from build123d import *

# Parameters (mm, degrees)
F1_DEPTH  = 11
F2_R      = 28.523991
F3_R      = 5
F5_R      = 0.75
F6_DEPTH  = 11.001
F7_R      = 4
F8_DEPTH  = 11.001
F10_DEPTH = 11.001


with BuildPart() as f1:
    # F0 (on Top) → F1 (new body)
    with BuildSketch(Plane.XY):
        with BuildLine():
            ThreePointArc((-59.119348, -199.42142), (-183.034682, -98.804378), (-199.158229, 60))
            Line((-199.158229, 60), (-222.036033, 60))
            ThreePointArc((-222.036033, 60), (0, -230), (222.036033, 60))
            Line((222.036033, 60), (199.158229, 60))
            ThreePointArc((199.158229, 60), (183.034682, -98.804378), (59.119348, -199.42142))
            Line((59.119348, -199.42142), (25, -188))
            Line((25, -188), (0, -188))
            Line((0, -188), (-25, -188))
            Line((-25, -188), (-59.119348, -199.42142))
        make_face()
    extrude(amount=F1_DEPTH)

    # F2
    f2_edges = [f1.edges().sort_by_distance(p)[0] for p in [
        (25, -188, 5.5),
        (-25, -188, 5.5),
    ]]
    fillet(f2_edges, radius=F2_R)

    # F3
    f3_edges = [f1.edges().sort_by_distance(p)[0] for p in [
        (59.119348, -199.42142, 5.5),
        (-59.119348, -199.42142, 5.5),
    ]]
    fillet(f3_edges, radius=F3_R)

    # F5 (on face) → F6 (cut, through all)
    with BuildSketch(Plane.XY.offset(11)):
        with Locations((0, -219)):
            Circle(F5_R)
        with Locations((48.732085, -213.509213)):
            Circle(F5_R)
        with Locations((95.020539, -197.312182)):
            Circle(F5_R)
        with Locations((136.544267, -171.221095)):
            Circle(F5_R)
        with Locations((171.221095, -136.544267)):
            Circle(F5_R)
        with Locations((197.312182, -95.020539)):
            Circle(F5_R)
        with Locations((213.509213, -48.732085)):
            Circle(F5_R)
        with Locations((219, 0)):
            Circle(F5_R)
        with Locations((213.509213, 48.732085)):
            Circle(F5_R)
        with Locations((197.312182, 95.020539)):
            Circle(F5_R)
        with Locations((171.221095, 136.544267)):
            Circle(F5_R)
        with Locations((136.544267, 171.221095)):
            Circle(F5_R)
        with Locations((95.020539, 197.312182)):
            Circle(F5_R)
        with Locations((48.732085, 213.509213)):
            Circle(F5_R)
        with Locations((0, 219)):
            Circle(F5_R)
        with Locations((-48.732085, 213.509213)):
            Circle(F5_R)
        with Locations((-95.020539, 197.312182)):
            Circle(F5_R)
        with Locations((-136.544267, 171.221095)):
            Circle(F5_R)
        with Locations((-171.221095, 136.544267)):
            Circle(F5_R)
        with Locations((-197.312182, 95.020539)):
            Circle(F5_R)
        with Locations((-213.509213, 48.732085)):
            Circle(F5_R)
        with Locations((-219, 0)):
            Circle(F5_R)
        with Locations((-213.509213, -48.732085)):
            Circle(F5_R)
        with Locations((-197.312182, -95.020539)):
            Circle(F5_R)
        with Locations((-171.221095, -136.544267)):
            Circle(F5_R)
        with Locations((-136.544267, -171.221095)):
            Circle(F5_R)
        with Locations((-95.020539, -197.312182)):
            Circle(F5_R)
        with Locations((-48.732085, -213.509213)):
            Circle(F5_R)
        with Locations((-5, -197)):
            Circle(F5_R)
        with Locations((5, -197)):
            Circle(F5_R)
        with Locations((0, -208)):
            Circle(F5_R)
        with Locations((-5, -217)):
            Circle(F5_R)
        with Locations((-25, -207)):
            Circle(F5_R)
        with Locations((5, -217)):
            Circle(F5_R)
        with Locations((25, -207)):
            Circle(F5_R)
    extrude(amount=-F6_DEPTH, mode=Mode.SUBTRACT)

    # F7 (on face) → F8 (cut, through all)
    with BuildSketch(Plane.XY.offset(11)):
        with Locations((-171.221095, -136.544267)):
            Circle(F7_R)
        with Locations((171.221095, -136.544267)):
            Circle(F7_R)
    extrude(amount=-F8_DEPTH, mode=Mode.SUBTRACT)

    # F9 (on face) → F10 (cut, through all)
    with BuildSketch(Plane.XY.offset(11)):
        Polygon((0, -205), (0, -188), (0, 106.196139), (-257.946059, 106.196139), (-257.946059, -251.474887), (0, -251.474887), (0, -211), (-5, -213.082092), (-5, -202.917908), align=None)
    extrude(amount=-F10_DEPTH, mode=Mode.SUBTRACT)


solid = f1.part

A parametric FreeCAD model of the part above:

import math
import FreeCAD as App
import Part
import Sketcher
from FreeCAD import Vector


def edges_at(feature, points):
    """Names of the edges that pass closest to the given points."""
    edges = feature.Shape.Edges
    near = lambda p: min(range(len(edges)), key=lambda i: edges[i].distToShape(Part.Vertex(*p))[0])
    return sorted({f"Edge{near(p) + 1}" for p in points})

doc = App.newDocument("Part")
body = doc.addObject("PartDesign::Body", "Body")

sketch1 = body.newObject("Sketcher::SketchObject", "Sketch")
sketch1.AttachmentSupport = (doc.getObject("XY_Plane"), [""])
sketch1.MapMode = "FlatFace"
sketch1.addGeometry(Part.ArcOfCircle(Part.Circle(Vector(0, 0, 0), Vector(0, 0, 1), 208), math.radians(163), math.radians(253)), False)
sketch1.addGeometry(Part.LineSegment(Vector(-199, 60, 0), Vector(-222, 60, 0)), False)
sketch1.addGeometry(Part.ArcOfCircle(Part.Circle(Vector(0, 0, 0), Vector(0, 0, 1), 230), math.radians(165), math.radians(375)), False)
sketch1.addGeometry(Part.LineSegment(Vector(222, 60, 0), Vector(199, 60, 0)), False)
sketch1.addGeometry(Part.ArcOfCircle(Part.Circle(Vector(0, 0, 0), Vector(0, 0, 1), 208), math.radians(-73), math.radians(17)), False)
sketch1.addGeometry(Part.LineSegment(Vector(59, -199, 0), Vector(25, -188, 0)), False)
sketch1.addGeometry(Part.LineSegment(Vector(25, -188, 0), Vector(-25, -188, 0)), False)
sketch1.addGeometry(Part.LineSegment(Vector(-25, -188, 0), Vector(-59, -199, 0)), False)
sketch1.addConstraint(Sketcher.Constraint("Coincident", 0, 1, 1, 1))
sketch1.addConstraint(Sketcher.Constraint("Coincident", 1, 2, 2, 1))
sketch1.addConstraint(Sketcher.Constraint("Coincident", 2, 2, 3, 1))
sketch1.addConstraint(Sketcher.Constraint("Coincident", 3, 2, 4, 2))
sketch1.addConstraint(Sketcher.Constraint("Coincident", 4, 1, 5, 1))
sketch1.addConstraint(Sketcher.Constraint("Coincident", 5, 2, 6, 1))
sketch1.addConstraint(Sketcher.Constraint("Coincident", 6, 2, 7, 1))
sketch1.addConstraint(Sketcher.Constraint("Coincident", 7, 2, 0, 2))
sketch1.addConstraint(Sketcher.Constraint("Horizontal", 1))
sketch1.addConstraint(Sketcher.Constraint("Horizontal", 3))
sketch1.addConstraint(Sketcher.Constraint("Horizontal", 6))
sketch1.addConstraint(Sketcher.Constraint("Coincident", 0, 3, -1, 1))
sketch1.addConstraint(Sketcher.Constraint("Coincident", 2, 3, -1, 1))
sketch1.addConstraint(Sketcher.Constraint("Coincident", 4, 3, -1, 1))
sketch1.addConstraint(Sketcher.Constraint("Equal", 0, 4))
sketch1.addConstraint(Sketcher.Constraint("Horizontal", 1, 2, 2, 2))
sketch1.addConstraint(Sketcher.Constraint("Horizontal", 4, 1, 7, 2))
sketch1.addConstraint(Sketcher.Constraint("Equal", 5, 7))
sketch1.addConstraint(Sketcher.Constraint("Radius", 0, 208.000001))
sketch1.addConstraint(Sketcher.Constraint("Radius", 2, 230.0))
sketch1.addConstraint(Sketcher.Constraint("DistanceX", 6, 2, 6, 1, 50.0))
sketch1.addConstraint(Sketcher.Constraint("DistanceY", -1, 1, 0, 1, 60.0))
sketch1.addConstraint(Sketcher.Constraint("DistanceY", 5, 2, -1, 1, 188.0))
sketch1.addConstraint(Sketcher.Constraint("DistanceX", -1, 1, 4, 1, 59.119348))
pad1 = body.newObject("PartDesign::Pad", "Pad")
pad1.Profile = sketch1
pad1.Length = 11
doc.recompute()

fillet = body.newObject("PartDesign::Fillet", "Fillet")
fillet.Base = (pad1, edges_at(pad1, [(25, -188, 5.5), (-25, -188, 5.5)]))
fillet.Radius = 28.523991
doc.recompute()

fillet2 = body.newObject("PartDesign::Fillet", "Fillet001")
fillet2.Base = (fillet, edges_at(fillet, [(59.119, -199.421, 5.5), (-59.119, -199.421, 5.5)]))
fillet2.Radius = 5

sketch2 = body.newObject("Sketcher::SketchObject", "Sketch001")
sketch2.AttachmentSupport = (doc.getObject("XY_Plane"), [""])
sketch2.MapMode = "FlatFace"
sketch2.AttachmentOffset = App.Placement(Vector(0, 0, 11), App.Rotation())
sketch2.addGeometry(Part.Circle(Vector(0, -219, 0), Vector(0, 0, 1), 0.8), False)
sketch2.addGeometry(Part.Circle(Vector(48.7, -213.5, 0), Vector(0, 0, 1), 0.8), False)
sketch2.addGeometry(Part.Circle(Vector(95, -197.3, 0), Vector(0, 0, 1), 0.8), False)
sketch2.addGeometry(Part.Circle(Vector(136.5, -171.2, 0), Vector(0, 0, 1), 0.8), False)
sketch2.addGeometry(Part.Circle(Vector(171.2, -136.5, 0), Vector(0, 0, 1), 0.8), False)
sketch2.addGeometry(Part.Circle(Vector(197.3, -95, 0), Vector(0, 0, 1), 0.8), False)
sketch2.addGeometry(Part.Circle(Vector(213.5, -48.7, 0), Vector(0, 0, 1), 0.8), False)
sketch2.addGeometry(Part.Circle(Vector(219, 0, 0), Vector(0, 0, 1), 0.8), False)
sketch2.addGeometry(Part.Circle(Vector(213.5, 48.7, 0), Vector(0, 0, 1), 0.8), False)
sketch2.addGeometry(Part.Circle(Vector(197.3, 95, 0), Vector(0, 0, 1), 0.8), False)
sketch2.addGeometry(Part.Circle(Vector(171.2, 136.5, 0), Vector(0, 0, 1), 0.8), False)
sketch2.addGeometry(Part.Circle(Vector(136.5, 171.2, 0), Vector(0, 0, 1), 0.8), False)
sketch2.addGeometry(Part.Circle(Vector(95, 197.3, 0), Vector(0, 0, 1), 0.8), False)
sketch2.addGeometry(Part.Circle(Vector(48.7, 213.5, 0), Vector(0, 0, 1), 0.8), False)
sketch2.addGeometry(Part.Circle(Vector(0, 219, 0), Vector(0, 0, 1), 0.8), False)
sketch2.addGeometry(Part.Circle(Vector(-48.7, 213.5, 0), Vector(0, 0, 1), 0.8), False)
sketch2.addGeometry(Part.Circle(Vector(-95, 197.3, 0), Vector(0, 0, 1), 0.8), False)
sketch2.addGeometry(Part.Circle(Vector(-136.5, 171.2, 0), Vector(0, 0, 1), 0.8), False)
sketch2.addGeometry(Part.Circle(Vector(-171.2, 136.5, 0), Vector(0, 0, 1), 0.8), False)
sketch2.addGeometry(Part.Circle(Vector(-197.3, 95, 0), Vector(0, 0, 1), 0.8), False)
sketch2.addGeometry(Part.Circle(Vector(-213.5, 48.7, 0), Vector(0, 0, 1), 0.8), False)
sketch2.addGeometry(Part.Circle(Vector(-219, 0, 0), Vector(0, 0, 1), 0.8), False)
sketch2.addGeometry(Part.Circle(Vector(-213.5, -48.7, 0), Vector(0, 0, 1), 0.8), False)
sketch2.addGeometry(Part.Circle(Vector(-197.3, -95, 0), Vector(0, 0, 1), 0.8), False)
sketch2.addGeometry(Part.Circle(Vector(-171.2, -136.5, 0), Vector(0, 0, 1), 0.8), False)
sketch2.addGeometry(Part.Circle(Vector(-136.5, -171.2, 0), Vector(0, 0, 1), 0.8), False)
sketch2.addGeometry(Part.Circle(Vector(-95, -197.3, 0), Vector(0, 0, 1), 0.8), False)
sketch2.addGeometry(Part.Circle(Vector(-48.7, -213.5, 0), Vector(0, 0, 1), 0.8), False)
sketch2.addGeometry(Part.Circle(Vector(-5, -197, 0), Vector(0, 0, 1), 0.8), False)
sketch2.addGeometry(Part.Circle(Vector(5, -197, 0), Vector(0, 0, 1), 0.8), False)
sketch2.addGeometry(Part.Circle(Vector(0, -208, 0), Vector(0, 0, 1), 0.8), False)
sketch2.addGeometry(Part.Circle(Vector(-5, -217, 0), Vector(0, 0, 1), 0.8), False)
sketch2.addGeometry(Part.Circle(Vector(-25, -207, 0), Vector(0, 0, 1), 0.8), False)
sketch2.addGeometry(Part.Circle(Vector(5, -217, 0), Vector(0, 0, 1), 0.8), False)
sketch2.addGeometry(Part.Circle(Vector(25, -207, 0), Vector(0, 0, 1), 0.8), False)
sketch2.addConstraint(Sketcher.Constraint("Equal", 0, 1))
sketch2.addConstraint(Sketcher.Constraint("Equal", 1, 2))
sketch2.addConstraint(Sketcher.Constraint("Equal", 2, 3))
sketch2.addConstraint(Sketcher.Constraint("Equal", 3, 4))
sketch2.addConstraint(Sketcher.Constraint("Equal", 4, 5))
sketch2.addConstraint(Sketcher.Constraint("Equal", 5, 6))
sketch2.addConstraint(Sketcher.Constraint("Equal", 6, 7))
sketch2.addConstraint(Sketcher.Constraint("Equal", 7, 8))
sketch2.addConstraint(Sketcher.Constraint("Equal", 8, 9))
sketch2.addConstraint(Sketcher.Constraint("Equal", 9, 10))
sketch2.addConstraint(Sketcher.Constraint("Equal", 10, 11))
sketch2.addConstraint(Sketcher.Constraint("Equal", 11, 12))
sketch2.addConstraint(Sketcher.Constraint("Equal", 12, 13))
sketch2.addConstraint(Sketcher.Constraint("Equal", 13, 14))
sketch2.addConstraint(Sketcher.Constraint("Equal", 14, 15))
sketch2.addConstraint(Sketcher.Constraint("Equal", 15, 16))
sketch2.addConstraint(Sketcher.Constraint("Equal", 16, 17))
sketch2.addConstraint(Sketcher.Constraint("Equal", 17, 18))
sketch2.addConstraint(Sketcher.Constraint("Equal", 18, 19))
sketch2.addConstraint(Sketcher.Constraint("Equal", 19, 20))
sketch2.addConstraint(Sketcher.Constraint("Equal", 20, 21))
sketch2.addConstraint(Sketcher.Constraint("Equal", 21, 22))
sketch2.addConstraint(Sketcher.Constraint("Equal", 22, 23))
sketch2.addConstraint(Sketcher.Constraint("Equal", 23, 24))
sketch2.addConstraint(Sketcher.Constraint("Equal", 24, 25))
sketch2.addConstraint(Sketcher.Constraint("Equal", 25, 26))
sketch2.addConstraint(Sketcher.Constraint("Equal", 26, 27))
sketch2.addConstraint(Sketcher.Constraint("Equal", 27, 28))
sketch2.addConstraint(Sketcher.Constraint("Equal", 28, 29))
sketch2.addConstraint(Sketcher.Constraint("Equal", 29, 30))
sketch2.addConstraint(Sketcher.Constraint("Equal", 30, 31))
sketch2.addConstraint(Sketcher.Constraint("Equal", 31, 32))
sketch2.addConstraint(Sketcher.Constraint("Equal", 32, 33))
sketch2.addConstraint(Sketcher.Constraint("Equal", 33, 34))
sketch2.addConstraint(Sketcher.Constraint("Symmetric", 0, 3, 14, 3, -1, 1))
sketch2.addConstraint(Sketcher.Constraint("Symmetric", 1, 3, 15, 3, -1, 1))
sketch2.addConstraint(Sketcher.Constraint("Symmetric", 2, 3, 16, 3, -1, 1))
sketch2.addConstraint(Sketcher.Constraint("Symmetric", 3, 3, 17, 3, -1, 1))
sketch2.addConstraint(Sketcher.Constraint("Symmetric", 4, 3, 18, 3, -1, 1))
sketch2.addConstraint(Sketcher.Constraint("Symmetric", 5, 3, 19, 3, -1, 1))
sketch2.addConstraint(Sketcher.Constraint("Symmetric", 6, 3, 20, 3, -1, 1))
sketch2.addConstraint(Sketcher.Constraint("Symmetric", 7, 3, 21, 3, -1, 1))
sketch2.addConstraint(Sketcher.Constraint("Symmetric", 8, 3, 22, 3, -1, 1))
sketch2.addConstraint(Sketcher.Constraint("Symmetric", 9, 3, 23, 3, -1, 1))
sketch2.addConstraint(Sketcher.Constraint("Symmetric", 10, 3, 24, 3, -1, 1))
sketch2.addConstraint(Sketcher.Constraint("Symmetric", 11, 3, 25, 3, -1, 1))
sketch2.addConstraint(Sketcher.Constraint("Symmetric", 12, 3, 26, 3, -1, 1))
sketch2.addConstraint(Sketcher.Constraint("Symmetric", 13, 3, 27, 3, -1, 1))
sketch2.addConstraint(Sketcher.Constraint("Symmetric", 13, 3, 15, 3, -2))
sketch2.addConstraint(Sketcher.Constraint("Symmetric", 12, 3, 16, 3, -2))
sketch2.addConstraint(Sketcher.Constraint("Symmetric", 11, 3, 17, 3, -2))
sketch2.addConstraint(Sketcher.Constraint("Symmetric", 10, 3, 18, 3, -2))
sketch2.addConstraint(Sketcher.Constraint("Symmetric", 9, 3, 19, 3, -2))
sketch2.addConstraint(Sketcher.Constraint("Symmetric", 8, 3, 20, 3, -2))
sketch2.addConstraint(Sketcher.Constraint("Symmetric", 28, 3, 29, 3, -2))
sketch2.addConstraint(Sketcher.Constraint("Symmetric", 31, 3, 33, 3, -2))
sketch2.addConstraint(Sketcher.Constraint("Symmetric", 32, 3, 34, 3, -2))
sketch2.addConstraint(Sketcher.Constraint("PointOnObject", 0, 3, -2))
sketch2.addConstraint(Sketcher.Constraint("PointOnObject", 7, 3, -1))
sketch2.addConstraint(Sketcher.Constraint("PointOnObject", 30, 3, -2))
sketch2.addConstraint(Sketcher.Constraint("Vertical", 28, 3, 31, 3))
sketch2.addConstraint(Sketcher.Constraint("Diameter", 0, 1.5))
sketch2.addConstraint(Sketcher.Constraint("DistanceY", 0, 3, -1, 1, 219.0))
sketch2.addConstraint(Sketcher.Constraint("DistanceX", -1, 1, 7, 3, 219.0))
sketch2.addConstraint(Sketcher.Constraint("DistanceX", 28, 3, -1, 1, 5.0))
sketch2.addConstraint(Sketcher.Constraint("DistanceY", 28, 3, -1, 1, 197.0))
sketch2.addConstraint(Sketcher.Constraint("DistanceY", 30, 3, -1, 1, 208.0))
sketch2.addConstraint(Sketcher.Constraint("DistanceY", 31, 3, -1, 1, 217.0))
sketch2.addConstraint(Sketcher.Constraint("DistanceX", 32, 3, -1, 1, 25.0))
sketch2.addConstraint(Sketcher.Constraint("DistanceY", 32, 3, -1, 1, 207.0))
sketch2.addConstraint(Sketcher.Constraint("DistanceX", -1, 1, 2, 3, 95.020539))
sketch2.addConstraint(Sketcher.Constraint("DistanceY", 2, 3, -1, 1, 197.312182))
sketch2.addConstraint(Sketcher.Constraint("DistanceX", -1, 1, 5, 3, 197.312182))
sketch2.addConstraint(Sketcher.Constraint("DistanceY", 5, 3, -1, 1, 95.020539))
sketch2.addConstraint(Sketcher.Constraint("DistanceY", 1, 3, 2, 3, 16.197031))
sketch2.addConstraint(Sketcher.Constraint("DistanceX", 1, 3, 3, 3, 87.812182))
sketch2.addConstraint(Sketcher.Constraint("DistanceX", 1, 3, 4, 3, 122.48901))
sketch2.addConstraint(Sketcher.Constraint("DistanceX", 5, 3, 6, 3, 16.197031))
sketch2.addConstraint(Sketcher.Constraint("DistanceY", 4, 3, 6, 3, 87.812182))
sketch2.addConstraint(Sketcher.Constraint("DistanceY", 3, 3, 6, 3, 122.48901))
sketch2.addConstraint(Sketcher.Constraint("DistanceX", 1, 3, 6, 3, 164.777128))
sketch2.addConstraint(Sketcher.Constraint("DistanceY", 1, 3, 6, 3, 164.777128))
pocket1 = body.newObject("PartDesign::Pocket", "Pocket")
pocket1.Profile = sketch2
pocket1.Type = "ThroughAll"

sketch3 = body.newObject("Sketcher::SketchObject", "Sketch002")
sketch3.AttachmentSupport = (doc.getObject("XY_Plane"), [""])
sketch3.MapMode = "FlatFace"
sketch3.AttachmentOffset = App.Placement(Vector(0, 0, 11), App.Rotation())
sketch3.addGeometry(Part.Circle(Vector(-171.2, -136.5, 0), Vector(0, 0, 1), 4), False)
sketch3.addGeometry(Part.Circle(Vector(171.2, -136.5, 0), Vector(0, 0, 1), 4), False)
sketch3.addConstraint(Sketcher.Constraint("Equal", 0, 1))
sketch3.addConstraint(Sketcher.Constraint("Symmetric", 0, 3, 1, 3, -2))
sketch3.addConstraint(Sketcher.Constraint("Diameter", 0, 8.0))
sketch3.addConstraint(Sketcher.Constraint("DistanceX", 0, 3, 1, 3, 342.44219))
sketch3.addConstraint(Sketcher.Constraint("DistanceY", 0, 3, -1, 1, 136.544267))
pocket2 = body.newObject("PartDesign::Pocket", "Pocket001")
pocket2.Profile = sketch3
pocket2.Type = "ThroughAll"

sketch4 = body.newObject("Sketcher::SketchObject", "Sketch003")
sketch4.AttachmentSupport = (doc.getObject("XY_Plane"), [""])
sketch4.MapMode = "FlatFace"
sketch4.AttachmentOffset = App.Placement(Vector(0, 0, 11), App.Rotation())
sketch4.addGeometry(Part.LineSegment(Vector(0, -205, 0), Vector(0, 106, 0)), False)
sketch4.addGeometry(Part.LineSegment(Vector(0, 106, 0), Vector(-258, 106, 0)), False)
sketch4.addGeometry(Part.LineSegment(Vector(-258, 106, 0), Vector(-258, -251, 0)), False)
sketch4.addGeometry(Part.LineSegment(Vector(-258, -251, 0), Vector(0, -251, 0)), False)
sketch4.addGeometry(Part.LineSegment(Vector(0, -251, 0), Vector(0, -211, 0)), False)
sketch4.addGeometry(Part.LineSegment(Vector(0, -211, 0), Vector(-5, -213, 0)), False)
sketch4.addGeometry(Part.LineSegment(Vector(-5, -213, 0), Vector(-5, -203, 0)), False)
sketch4.addGeometry(Part.LineSegment(Vector(-5, -203, 0), Vector(0, -205, 0)), False)
sketch4.addConstraint(Sketcher.Constraint("Coincident", 0, 2, 1, 1))
sketch4.addConstraint(Sketcher.Constraint("Coincident", 1, 2, 2, 1))
sketch4.addConstraint(Sketcher.Constraint("Coincident", 2, 2, 3, 1))
sketch4.addConstraint(Sketcher.Constraint("Coincident", 3, 2, 4, 1))
sketch4.addConstraint(Sketcher.Constraint("Coincident", 4, 2, 5, 1))
sketch4.addConstraint(Sketcher.Constraint("Coincident", 5, 2, 6, 1))
sketch4.addConstraint(Sketcher.Constraint("Coincident", 6, 2, 7, 1))
sketch4.addConstraint(Sketcher.Constraint("Coincident", 7, 2, 0, 1))
sketch4.addConstraint(Sketcher.Constraint("Vertical", 0))
sketch4.addConstraint(Sketcher.Constraint("Horizontal", 1))
sketch4.addConstraint(Sketcher.Constraint("Vertical", 2))
sketch4.addConstraint(Sketcher.Constraint("Horizontal", 3))
sketch4.addConstraint(Sketcher.Constraint("Vertical", 4))
sketch4.addConstraint(Sketcher.Constraint("Vertical", 6))
sketch4.addConstraint(Sketcher.Constraint("PointOnObject", 0, 2, -2))
sketch4.addConstraint(Sketcher.Constraint("PointOnObject", 3, 2, -2))
sketch4.addConstraint(Sketcher.Constraint("Equal", 5, 7))
sketch4.addConstraint(Sketcher.Constraint("DistanceY", 4, 2, -1, 1, 211.0))
sketch4.addConstraint(Sketcher.Constraint("DistanceX", 5, 2, -1, 1, 5.0))
sketch4.addConstraint(Sketcher.Constraint("DistanceY", 7, 2, -1, 1, 205.0))
sketch4.addConstraint(Sketcher.Constraint("DistanceX", 1, 2, 1, 1, 257.946059))
sketch4.addConstraint(Sketcher.Constraint("DistanceY", 0, 1, 0, 2, 311.196139))
sketch4.addConstraint(Sketcher.Constraint("Distance", 5, 5.416189))
sketch4.addConstraint(Sketcher.Constraint("DistanceY", 2, 2, 2, 1, 357.671026))
pocket3 = body.newObject("PartDesign::Pocket", "Pocket002")
pocket3.Profile = sketch4
pocket3.Type = "ThroughAll"

doc.recompute()
